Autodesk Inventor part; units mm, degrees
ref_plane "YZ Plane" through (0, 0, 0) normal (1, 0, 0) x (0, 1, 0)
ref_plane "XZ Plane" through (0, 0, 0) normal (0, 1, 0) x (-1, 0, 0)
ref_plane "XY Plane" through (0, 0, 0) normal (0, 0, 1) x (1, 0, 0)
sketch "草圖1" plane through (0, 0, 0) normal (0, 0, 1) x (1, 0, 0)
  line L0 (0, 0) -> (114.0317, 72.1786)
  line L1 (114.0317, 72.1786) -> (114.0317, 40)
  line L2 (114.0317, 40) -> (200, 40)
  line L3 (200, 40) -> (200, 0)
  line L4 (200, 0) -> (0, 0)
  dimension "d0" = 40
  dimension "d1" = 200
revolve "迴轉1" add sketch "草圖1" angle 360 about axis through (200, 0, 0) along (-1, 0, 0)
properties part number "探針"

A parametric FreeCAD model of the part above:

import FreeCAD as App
import Part
import Sketcher
from FreeCAD import Vector

doc = App.newDocument("Part")
body = doc.addObject("PartDesign::Body", "Body")

# Sketch on XY plane
sketch1 = body.newObject("Sketcher::SketchObject", "Sketch")
sketch1.AttachmentSupport = (doc.getObject("XY_Plane"), [""])
sketch1.MapMode = "FlatFace"
sketch1.addGeometry([
    Part.LineSegment(Vector(114, 72, 0), Vector(0, 0, 0)),  # 0
    Part.LineSegment(Vector(0, 0, 0), Vector(200, 0, 0)),  # 1
    Part.LineSegment(Vector(200, 0, 0), Vector(200, 40, 0)),  # 2
    Part.LineSegment(Vector(200, 40, 0), Vector(114, 40, 0)),  # 3
    Part.LineSegment(Vector(114, 40, 0), Vector(114, 72, 0)),  # 4
], False)
sketch1.addConstraint([
    Sketcher.Constraint("Coincident", 0, 2, 1, 1),
    Sketcher.Constraint("Coincident", 1, 2, 2, 1),
    Sketcher.Constraint("Coincident", 2, 2, 3, 1),
    Sketcher.Constraint("Coincident", 3, 2, 4, 1),
    Sketcher.Constraint("Coincident", 4, 2, 0, 1),
    Sketcher.Constraint("Horizontal", 1),
    Sketcher.Constraint("Vertical", 2),
    Sketcher.Constraint("Horizontal", 3),
    Sketcher.Constraint("Vertical", 4),
    Sketcher.Constraint("Coincident", 0, 2, -1, 1),
    Sketcher.Constraint("DistanceX", 1, 1, 1, 2, 200.0),
    Sketcher.Constraint("DistanceY", 2, 1, 2, 2, 40.0),
    Sketcher.Constraint("DistanceX", 3, 2, 3, 1, 85.9683),
    Sketcher.Constraint("DistanceY", 4, 1, 4, 2, 32.1786),
])
revolution = body.newObject("PartDesign::Revolution", "Revolution")
revolution.Profile = sketch1
revolution.ReferenceAxis = (sketch1, ["H_Axis"])
revolution.Angle = 360

doc.recompute()
